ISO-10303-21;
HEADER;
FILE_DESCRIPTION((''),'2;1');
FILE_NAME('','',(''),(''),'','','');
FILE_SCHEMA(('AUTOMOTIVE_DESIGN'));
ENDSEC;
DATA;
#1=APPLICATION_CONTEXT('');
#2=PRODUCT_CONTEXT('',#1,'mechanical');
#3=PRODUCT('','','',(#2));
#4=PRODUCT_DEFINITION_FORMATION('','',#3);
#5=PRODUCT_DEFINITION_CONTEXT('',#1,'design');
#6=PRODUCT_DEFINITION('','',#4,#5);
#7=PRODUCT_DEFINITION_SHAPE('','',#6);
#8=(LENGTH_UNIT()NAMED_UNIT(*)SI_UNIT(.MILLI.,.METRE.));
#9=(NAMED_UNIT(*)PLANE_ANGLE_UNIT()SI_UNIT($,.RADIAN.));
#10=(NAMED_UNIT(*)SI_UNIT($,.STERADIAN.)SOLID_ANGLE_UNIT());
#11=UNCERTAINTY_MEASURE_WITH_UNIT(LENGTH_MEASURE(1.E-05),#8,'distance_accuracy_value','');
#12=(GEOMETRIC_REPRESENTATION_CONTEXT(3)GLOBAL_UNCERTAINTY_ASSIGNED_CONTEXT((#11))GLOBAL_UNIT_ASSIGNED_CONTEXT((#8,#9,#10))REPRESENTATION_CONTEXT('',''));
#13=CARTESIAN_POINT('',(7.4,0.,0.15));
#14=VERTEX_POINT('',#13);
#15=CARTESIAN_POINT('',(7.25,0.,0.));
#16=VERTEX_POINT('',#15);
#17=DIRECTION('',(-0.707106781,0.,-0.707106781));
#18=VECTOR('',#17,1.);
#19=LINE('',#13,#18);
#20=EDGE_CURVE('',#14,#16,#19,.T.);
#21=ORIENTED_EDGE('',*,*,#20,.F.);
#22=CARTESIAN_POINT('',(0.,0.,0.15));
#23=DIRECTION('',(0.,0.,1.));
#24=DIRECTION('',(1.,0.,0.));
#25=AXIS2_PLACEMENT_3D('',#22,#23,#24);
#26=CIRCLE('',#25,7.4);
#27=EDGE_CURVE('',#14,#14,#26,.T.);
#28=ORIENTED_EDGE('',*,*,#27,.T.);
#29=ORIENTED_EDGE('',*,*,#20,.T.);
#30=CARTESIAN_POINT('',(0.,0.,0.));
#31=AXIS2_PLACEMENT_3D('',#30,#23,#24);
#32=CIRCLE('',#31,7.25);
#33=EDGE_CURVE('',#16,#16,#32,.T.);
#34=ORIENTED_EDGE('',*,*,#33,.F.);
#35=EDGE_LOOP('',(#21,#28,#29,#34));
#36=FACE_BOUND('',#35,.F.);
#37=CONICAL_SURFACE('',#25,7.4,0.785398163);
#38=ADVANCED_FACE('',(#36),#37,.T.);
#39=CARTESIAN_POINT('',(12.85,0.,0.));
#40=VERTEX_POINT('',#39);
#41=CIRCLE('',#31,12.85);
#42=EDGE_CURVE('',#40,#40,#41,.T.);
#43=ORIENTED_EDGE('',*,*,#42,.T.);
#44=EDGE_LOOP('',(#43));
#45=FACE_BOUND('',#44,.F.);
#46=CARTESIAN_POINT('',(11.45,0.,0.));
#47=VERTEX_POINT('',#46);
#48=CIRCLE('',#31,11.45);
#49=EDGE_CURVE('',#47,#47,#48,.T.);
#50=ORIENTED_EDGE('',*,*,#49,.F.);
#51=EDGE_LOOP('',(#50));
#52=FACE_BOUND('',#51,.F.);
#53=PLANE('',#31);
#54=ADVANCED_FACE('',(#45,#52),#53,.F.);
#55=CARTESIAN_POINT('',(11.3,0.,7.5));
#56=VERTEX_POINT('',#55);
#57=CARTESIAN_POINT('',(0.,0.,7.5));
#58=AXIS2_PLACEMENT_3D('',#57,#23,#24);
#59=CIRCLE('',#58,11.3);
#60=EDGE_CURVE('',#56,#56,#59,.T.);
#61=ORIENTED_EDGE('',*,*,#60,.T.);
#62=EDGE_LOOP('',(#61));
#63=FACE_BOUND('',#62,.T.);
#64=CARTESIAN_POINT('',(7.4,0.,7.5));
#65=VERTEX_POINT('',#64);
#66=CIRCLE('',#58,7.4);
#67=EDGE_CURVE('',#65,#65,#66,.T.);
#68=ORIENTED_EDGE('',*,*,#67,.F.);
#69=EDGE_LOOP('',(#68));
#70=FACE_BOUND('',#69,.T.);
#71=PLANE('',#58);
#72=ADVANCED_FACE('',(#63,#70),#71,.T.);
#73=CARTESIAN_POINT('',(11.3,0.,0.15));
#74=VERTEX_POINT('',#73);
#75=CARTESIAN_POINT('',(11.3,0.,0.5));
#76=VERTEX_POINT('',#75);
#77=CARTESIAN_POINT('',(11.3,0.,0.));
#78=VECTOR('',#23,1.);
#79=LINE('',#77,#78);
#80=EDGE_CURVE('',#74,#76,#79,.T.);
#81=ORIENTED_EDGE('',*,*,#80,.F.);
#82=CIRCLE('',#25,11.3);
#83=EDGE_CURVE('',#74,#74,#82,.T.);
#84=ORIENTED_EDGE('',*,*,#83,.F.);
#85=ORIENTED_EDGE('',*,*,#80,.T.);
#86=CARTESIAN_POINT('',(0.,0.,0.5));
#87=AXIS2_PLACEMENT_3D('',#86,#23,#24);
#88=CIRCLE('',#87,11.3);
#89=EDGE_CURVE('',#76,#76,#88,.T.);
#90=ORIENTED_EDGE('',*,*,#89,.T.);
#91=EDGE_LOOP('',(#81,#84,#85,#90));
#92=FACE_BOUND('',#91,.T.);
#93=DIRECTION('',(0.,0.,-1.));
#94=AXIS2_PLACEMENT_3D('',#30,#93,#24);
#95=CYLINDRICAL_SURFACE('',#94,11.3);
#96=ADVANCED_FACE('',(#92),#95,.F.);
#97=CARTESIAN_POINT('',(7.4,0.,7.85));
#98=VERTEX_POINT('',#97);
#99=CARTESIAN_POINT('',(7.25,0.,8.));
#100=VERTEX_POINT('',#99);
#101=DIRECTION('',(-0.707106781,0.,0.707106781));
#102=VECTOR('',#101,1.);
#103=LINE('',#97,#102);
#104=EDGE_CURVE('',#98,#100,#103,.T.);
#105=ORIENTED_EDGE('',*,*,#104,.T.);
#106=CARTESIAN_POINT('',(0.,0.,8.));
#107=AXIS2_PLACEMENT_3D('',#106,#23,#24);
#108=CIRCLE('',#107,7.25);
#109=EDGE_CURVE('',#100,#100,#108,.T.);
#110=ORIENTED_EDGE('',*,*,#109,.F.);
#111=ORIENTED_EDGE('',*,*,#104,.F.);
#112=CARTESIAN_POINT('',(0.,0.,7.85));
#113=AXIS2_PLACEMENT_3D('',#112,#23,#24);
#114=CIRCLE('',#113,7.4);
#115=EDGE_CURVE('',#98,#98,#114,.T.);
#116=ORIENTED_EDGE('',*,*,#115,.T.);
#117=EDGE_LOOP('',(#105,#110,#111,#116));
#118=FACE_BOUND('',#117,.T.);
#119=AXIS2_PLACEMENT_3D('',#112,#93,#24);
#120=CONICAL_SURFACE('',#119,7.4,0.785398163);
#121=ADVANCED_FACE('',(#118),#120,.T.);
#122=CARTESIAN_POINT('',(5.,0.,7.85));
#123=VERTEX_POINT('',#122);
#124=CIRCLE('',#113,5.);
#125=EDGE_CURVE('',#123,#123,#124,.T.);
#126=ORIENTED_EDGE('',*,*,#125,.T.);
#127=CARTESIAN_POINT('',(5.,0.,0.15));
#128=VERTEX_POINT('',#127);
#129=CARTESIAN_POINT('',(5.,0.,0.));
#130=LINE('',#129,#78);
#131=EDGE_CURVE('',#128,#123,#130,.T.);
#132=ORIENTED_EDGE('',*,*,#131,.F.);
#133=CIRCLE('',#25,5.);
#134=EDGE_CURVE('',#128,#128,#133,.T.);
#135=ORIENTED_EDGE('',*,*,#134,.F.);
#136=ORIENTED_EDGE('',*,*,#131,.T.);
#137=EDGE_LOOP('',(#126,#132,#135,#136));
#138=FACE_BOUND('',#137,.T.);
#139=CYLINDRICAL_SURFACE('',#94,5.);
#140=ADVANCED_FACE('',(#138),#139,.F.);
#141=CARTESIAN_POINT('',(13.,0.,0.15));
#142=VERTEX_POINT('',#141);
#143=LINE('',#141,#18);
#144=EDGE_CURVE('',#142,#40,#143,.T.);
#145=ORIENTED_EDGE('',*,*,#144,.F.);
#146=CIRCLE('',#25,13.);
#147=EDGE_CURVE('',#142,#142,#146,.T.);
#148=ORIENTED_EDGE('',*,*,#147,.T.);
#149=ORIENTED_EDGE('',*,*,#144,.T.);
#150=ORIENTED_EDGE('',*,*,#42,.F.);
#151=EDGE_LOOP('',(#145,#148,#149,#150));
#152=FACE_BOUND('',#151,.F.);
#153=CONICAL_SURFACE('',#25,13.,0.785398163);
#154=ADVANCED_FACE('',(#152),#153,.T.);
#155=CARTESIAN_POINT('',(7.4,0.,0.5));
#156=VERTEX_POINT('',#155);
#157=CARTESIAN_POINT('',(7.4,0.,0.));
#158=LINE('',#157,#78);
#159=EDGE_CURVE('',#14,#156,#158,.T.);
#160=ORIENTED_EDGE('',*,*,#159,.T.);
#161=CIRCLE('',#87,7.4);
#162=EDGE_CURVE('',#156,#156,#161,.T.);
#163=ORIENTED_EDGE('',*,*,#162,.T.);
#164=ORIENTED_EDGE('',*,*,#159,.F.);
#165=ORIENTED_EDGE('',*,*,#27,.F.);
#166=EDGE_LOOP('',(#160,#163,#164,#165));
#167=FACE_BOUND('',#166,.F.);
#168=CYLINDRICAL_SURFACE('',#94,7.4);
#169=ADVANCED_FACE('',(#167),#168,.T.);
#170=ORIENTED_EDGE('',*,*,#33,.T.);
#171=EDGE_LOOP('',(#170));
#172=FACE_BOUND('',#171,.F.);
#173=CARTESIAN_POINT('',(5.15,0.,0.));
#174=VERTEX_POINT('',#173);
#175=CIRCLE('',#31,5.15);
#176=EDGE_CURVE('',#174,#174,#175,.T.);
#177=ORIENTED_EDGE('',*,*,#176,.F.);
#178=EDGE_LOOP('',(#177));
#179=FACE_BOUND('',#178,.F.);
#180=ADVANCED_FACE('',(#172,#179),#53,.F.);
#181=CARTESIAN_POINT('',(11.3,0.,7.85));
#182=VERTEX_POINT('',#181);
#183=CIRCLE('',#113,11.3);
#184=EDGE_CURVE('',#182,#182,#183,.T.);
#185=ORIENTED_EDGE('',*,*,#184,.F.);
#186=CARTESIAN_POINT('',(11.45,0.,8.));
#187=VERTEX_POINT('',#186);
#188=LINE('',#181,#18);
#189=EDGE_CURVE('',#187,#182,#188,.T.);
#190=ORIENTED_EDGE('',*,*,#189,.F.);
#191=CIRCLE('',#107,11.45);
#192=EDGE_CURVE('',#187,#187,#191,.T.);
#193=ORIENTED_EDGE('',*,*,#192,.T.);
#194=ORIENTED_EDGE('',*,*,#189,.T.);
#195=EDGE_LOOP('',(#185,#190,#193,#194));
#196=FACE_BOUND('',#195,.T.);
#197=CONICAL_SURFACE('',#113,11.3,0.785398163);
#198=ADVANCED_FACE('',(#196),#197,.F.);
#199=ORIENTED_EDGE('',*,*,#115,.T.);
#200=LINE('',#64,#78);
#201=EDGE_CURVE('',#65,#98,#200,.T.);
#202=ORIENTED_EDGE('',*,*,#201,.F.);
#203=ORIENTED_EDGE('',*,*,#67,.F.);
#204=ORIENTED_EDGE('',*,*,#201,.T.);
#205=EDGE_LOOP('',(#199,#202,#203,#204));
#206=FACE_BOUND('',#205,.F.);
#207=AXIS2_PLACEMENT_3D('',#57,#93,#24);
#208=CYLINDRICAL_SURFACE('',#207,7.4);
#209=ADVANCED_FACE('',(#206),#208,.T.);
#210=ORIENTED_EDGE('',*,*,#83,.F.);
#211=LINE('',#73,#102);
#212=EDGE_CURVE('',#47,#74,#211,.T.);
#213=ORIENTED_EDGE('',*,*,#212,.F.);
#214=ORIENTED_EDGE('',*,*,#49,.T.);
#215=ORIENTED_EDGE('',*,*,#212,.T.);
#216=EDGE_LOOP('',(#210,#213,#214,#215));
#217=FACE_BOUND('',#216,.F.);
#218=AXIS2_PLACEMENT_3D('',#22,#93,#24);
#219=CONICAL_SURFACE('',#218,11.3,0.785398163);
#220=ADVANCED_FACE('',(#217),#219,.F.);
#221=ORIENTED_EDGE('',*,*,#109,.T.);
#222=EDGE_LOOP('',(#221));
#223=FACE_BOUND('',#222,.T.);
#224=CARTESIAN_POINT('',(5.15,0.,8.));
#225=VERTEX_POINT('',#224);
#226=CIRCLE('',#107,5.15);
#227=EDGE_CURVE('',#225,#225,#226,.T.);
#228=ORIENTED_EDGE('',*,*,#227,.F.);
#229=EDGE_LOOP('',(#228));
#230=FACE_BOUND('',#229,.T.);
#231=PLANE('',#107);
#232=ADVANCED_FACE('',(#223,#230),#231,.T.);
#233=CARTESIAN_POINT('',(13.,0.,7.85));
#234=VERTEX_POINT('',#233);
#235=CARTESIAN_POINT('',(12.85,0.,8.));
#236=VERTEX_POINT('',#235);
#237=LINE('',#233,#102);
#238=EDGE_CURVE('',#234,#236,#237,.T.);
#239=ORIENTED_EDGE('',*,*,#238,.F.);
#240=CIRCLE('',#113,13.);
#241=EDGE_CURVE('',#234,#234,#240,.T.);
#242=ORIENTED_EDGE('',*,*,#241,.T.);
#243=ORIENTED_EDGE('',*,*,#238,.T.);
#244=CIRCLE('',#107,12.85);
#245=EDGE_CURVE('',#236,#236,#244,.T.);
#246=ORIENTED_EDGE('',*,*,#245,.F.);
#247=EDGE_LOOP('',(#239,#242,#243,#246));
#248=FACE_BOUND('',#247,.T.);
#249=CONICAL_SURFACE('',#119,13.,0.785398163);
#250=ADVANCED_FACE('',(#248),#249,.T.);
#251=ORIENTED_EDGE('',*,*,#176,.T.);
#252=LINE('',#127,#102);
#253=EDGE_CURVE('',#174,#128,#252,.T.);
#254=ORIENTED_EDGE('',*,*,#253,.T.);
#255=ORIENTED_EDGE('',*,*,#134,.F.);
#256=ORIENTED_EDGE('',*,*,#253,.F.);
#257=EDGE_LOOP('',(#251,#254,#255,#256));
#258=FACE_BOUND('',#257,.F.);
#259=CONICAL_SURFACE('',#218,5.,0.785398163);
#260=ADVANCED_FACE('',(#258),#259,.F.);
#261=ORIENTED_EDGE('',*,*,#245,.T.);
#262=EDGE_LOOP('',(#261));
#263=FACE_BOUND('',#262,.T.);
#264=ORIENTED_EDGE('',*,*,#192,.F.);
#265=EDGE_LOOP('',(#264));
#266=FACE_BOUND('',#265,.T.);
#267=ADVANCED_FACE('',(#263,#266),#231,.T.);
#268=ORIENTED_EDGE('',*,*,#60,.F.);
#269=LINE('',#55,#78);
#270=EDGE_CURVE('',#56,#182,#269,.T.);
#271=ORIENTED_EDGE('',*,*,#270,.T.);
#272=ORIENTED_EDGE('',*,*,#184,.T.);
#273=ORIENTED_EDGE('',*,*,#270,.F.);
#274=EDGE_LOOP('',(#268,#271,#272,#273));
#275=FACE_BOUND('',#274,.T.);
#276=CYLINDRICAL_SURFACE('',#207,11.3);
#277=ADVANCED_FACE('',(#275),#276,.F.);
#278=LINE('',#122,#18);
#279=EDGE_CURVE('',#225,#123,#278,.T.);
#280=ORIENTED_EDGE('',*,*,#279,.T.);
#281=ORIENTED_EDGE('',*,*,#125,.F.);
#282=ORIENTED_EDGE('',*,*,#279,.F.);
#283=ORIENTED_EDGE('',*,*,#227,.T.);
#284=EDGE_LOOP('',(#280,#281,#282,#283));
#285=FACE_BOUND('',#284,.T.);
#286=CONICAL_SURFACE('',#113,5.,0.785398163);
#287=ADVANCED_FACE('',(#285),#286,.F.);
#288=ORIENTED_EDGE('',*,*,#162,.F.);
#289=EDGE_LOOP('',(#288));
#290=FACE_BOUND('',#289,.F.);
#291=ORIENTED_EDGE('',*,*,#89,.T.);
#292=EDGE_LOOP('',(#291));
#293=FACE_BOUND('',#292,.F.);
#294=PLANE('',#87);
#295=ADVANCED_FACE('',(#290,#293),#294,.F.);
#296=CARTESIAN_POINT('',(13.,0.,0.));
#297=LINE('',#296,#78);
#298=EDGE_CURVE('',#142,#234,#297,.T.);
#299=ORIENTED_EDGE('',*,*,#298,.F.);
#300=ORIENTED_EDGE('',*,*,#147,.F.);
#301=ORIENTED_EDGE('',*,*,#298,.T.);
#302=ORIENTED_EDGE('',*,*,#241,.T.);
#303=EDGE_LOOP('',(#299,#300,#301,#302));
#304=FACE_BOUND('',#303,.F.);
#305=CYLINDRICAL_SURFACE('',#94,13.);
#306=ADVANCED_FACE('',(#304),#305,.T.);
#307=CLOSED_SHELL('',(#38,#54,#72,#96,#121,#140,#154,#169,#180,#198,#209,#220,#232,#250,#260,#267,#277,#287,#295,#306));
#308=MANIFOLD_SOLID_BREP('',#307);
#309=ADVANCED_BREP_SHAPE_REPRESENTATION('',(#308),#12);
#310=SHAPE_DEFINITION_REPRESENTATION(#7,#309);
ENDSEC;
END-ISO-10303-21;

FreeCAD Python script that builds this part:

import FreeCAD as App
import Part
import Sketcher
from FreeCAD import Vector
Q = App.Units.Quantity


def edges_at(feature, points):
    """Names of the edges that pass closest to the given points."""
    edges = feature.Shape.Edges
    near = lambda p: min(range(len(edges)), key=lambda i: edges[i].distToShape(Part.Vertex(*p))[0])
    return sorted({f"Edge{near(p) + 1}" for p in points})

doc = App.newDocument("Part")
body = doc.addObject("PartDesign::Body", "Body")

sketch1 = body.newObject("Sketcher::SketchObject", "Sketch")
sketch1.AttachmentSupport = (doc.getObject("XY_Plane"), [""])
sketch1.MapMode = "FlatFace"
sketch1.addGeometry([
    Part.Circle(Vector(0, 0, 0), Vector(0, 0, 1), 13),
    Part.Circle(Vector(0, 0, 0), Vector(0, 0, 1), 5),
], False)
sketch1.addConstraint([
    Sketcher.Constraint("Coincident", 0, 3, -1, 1),
    Sketcher.Constraint("Coincident", 1, 3, -1, 1),
    Sketcher.Constraint("Diameter", 0, Q("26 mm")),
    Sketcher.Constraint("Diameter", 1, Q("10 mm")),
])
pad1 = body.newObject("PartDesign::Pad", "Pad")
pad1.Profile = sketch1
pad1.Length = 8

sketch2 = body.newObject("Sketcher::SketchObject", "Sketch001")
sketch2.AttachmentSupport = (doc.getObject("XY_Plane"), [""])
sketch2.MapMode = "FlatFace"
sketch2.addGeometry([
    Part.Circle(Vector(0, 0, 0), Vector(0, 0, 1), 11),
    Part.Circle(Vector(0, 0, 0), Vector(0, 0, 1), 7),
], False)
sketch2.addConstraint([
    Sketcher.Constraint("Coincident", 0, 3, -1, 1),
    Sketcher.Constraint("Coincident", 1, 3, -1, 1),
    Sketcher.Constraint("Diameter", 0, Q("22.6 mm")),
    Sketcher.Constraint("Diameter", 1, Q("14.8 mm")),
])
pocket1 = body.newObject("PartDesign::Pocket", "Pocket")
pocket1.Profile = sketch2
pocket1.Length = 0.5
pocket1.Reversed = True

sketch3 = body.newObject("Sketcher::SketchObject", "Sketch002")
sketch3.AttachmentSupport = (doc.getObject("XY_Plane"), [""])
sketch3.MapMode = "FlatFace"
sketch3.AttachmentOffset = App.Placement(Vector(0, 0, 7.5), App.Rotation())
sketch3.addGeometry([
    Part.Circle(Vector(0, 0, 0), Vector(0, 0, 1), 11),
    Part.Circle(Vector(0, 0, 0), Vector(0, 0, 1), 7),
], False)
sketch3.addConstraint([
    Sketcher.Constraint("Coincident", 0, 3, -1, 1),
    Sketcher.Constraint("Coincident", 1, 3, -1, 1),
    Sketcher.Constraint("Diameter", 0, Q("22.6 mm")),
    Sketcher.Constraint("Diameter", 1, Q("14.8 mm")),
])
pocket2 = body.newObject("PartDesign::Pocket", "Pocket001")
pocket2.Profile = sketch3
pocket2.Length = 0.5
pocket2.Reversed = True
doc.recompute()

chamfer = body.newObject("PartDesign::Chamfer", "Chamfer")
chamfer.Base = (pocket2, edges_at(pocket2, [
    (-13, 0, 0),
    (-11.3, 0, 0),
    (-7.4, 0, 0),
    (-5, 0, 0),
    (-13, 0, 8),
    (-11.3, 0, 8),
    (-7.4, 0, 8),
    (-5, 0, 8),
]))
chamfer.Size = 0.15

doc.recompute()
